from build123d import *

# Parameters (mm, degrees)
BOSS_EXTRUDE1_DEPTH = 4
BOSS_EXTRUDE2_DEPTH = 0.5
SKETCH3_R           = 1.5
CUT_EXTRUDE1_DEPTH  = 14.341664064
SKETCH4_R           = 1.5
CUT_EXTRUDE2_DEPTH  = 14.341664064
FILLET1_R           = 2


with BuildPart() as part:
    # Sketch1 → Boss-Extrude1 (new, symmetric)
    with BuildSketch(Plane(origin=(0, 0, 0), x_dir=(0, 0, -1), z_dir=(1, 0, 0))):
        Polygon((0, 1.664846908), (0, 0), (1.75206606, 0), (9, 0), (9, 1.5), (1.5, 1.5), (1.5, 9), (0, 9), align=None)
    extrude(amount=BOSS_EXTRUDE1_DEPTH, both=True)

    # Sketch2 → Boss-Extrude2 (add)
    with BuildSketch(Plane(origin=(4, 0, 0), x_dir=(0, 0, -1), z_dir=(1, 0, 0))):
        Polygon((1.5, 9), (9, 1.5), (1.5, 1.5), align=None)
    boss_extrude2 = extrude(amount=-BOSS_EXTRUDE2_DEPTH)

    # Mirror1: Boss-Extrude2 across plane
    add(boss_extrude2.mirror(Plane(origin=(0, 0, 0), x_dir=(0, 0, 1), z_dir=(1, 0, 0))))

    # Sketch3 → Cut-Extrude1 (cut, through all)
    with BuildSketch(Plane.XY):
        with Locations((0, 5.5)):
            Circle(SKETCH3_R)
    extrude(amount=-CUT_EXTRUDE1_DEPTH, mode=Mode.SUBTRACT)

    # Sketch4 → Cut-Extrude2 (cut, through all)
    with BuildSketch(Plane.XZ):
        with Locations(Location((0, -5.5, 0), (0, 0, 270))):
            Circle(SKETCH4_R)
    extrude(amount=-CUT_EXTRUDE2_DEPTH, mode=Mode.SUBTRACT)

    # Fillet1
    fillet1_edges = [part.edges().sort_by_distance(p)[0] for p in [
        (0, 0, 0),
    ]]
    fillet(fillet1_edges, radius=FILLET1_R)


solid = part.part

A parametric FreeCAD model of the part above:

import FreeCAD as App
import Part
import Sketcher
Q = App.Units.Quantity


def edges_at(feature, points):
    """Names of the edges that pass closest to the given points."""
    edges = feature.Shape.Edges
    near = lambda p: min(range(len(edges)), key=lambda i: edges[i].distToShape(Part.Vertex(*p))[0])
    return sorted({f"Edge{near(p) + 1}" for p in points})


def add_polygon(sketch, points):
    """Adds a closed chain of lines whose ends are joined by coincident constraints."""
    first, n = sketch.GeometryCount, len(points)
    for a, b in zip(points, points[1:] + points[:1]):
        sketch.addGeometry(Part.LineSegment(App.Vector(*a, 0), App.Vector(*b, 0)), False)
    for i in range(n):
        sketch.addConstraint(Sketcher.Constraint("Coincident", first + i, 2, first + (i + 1) % n, 1))

doc = App.newDocument("Part")
body = doc.addObject("PartDesign::Body", "Body")

# Sketch on YZ plane
sketch1 = body.newObject("Sketcher::SketchObject", "Sketch")
sketch1.AttachmentSupport = (doc.getObject("YZ_Plane"), [""])
sketch1.MapMode = "FlatFace"
add_polygon(sketch1, [(0, 0), (0, -9), (1.5, -9), (1.5, -1.5), (9, -1.5), (9, 0)])  # lines 0-5
sketch1.addConstraint([
    Sketcher.Constraint("Vertical", 0),
    Sketcher.Constraint("Horizontal", 1),
    Sketcher.Constraint("Vertical", 2),
    Sketcher.Constraint("Horizontal", 3),
    Sketcher.Constraint("Vertical", 4),
    Sketcher.Constraint("Horizontal", 5),
    Sketcher.Constraint("Coincident", 5, 2, -1, 1),
    Sketcher.Constraint("Equal", 5, 0),
    Sketcher.Constraint("Equal", 3, 2),
    Sketcher.Constraint("DistanceX", 5, 2, 5, 1, Q("9 mm")),
    Sketcher.Constraint("DistanceX", 1, 1, 1, 2, Q("1.5 mm")),
])
pad1 = body.newObject("PartDesign::Pad", "Pad")
pad1.Profile = sketch1
pad1.Length = 8
pad1.Midplane = True

# Sketch on YZ plane
sketch2 = body.newObject("Sketcher::SketchObject", "Sketch001")
sketch2.AttachmentSupport = (doc.getObject("YZ_Plane"), [""])
sketch2.MapMode = "FlatFace"
sketch2.AttachmentOffset = App.Placement(App.Vector(0, 0, 4), App.Rotation())
add_polygon(sketch2, [(1.5, -9), (9, -1.5), (1.5, -1.5)])  # lines 0-2
sketch2.addConstraint([
    Sketcher.Constraint("Horizontal", 1),
    Sketcher.Constraint("Vertical", 2),
    Sketcher.Constraint("Equal", 1, 2),
    Sketcher.Constraint("DistanceX", 1, 2, 1, 1, Q("7.5 mm")),
    Sketcher.Constraint("DistanceX", -1, 1, 0, 2, Q("9 mm")),
    Sketcher.Constraint("DistanceY", 2, 2, -1, 1, Q("9 mm")),
])
pad2 = body.newObject("PartDesign::Pad", "Pad001")
pad2.Profile = sketch2
pad2.Length = 0.5
pad2.Reversed = True
doc.recompute()

mirrored = body.newObject("PartDesign::Mirrored", "Mirrored")
mirrored.Originals = [pad2]
mirrored.MirrorPlane = (doc.getObject("YZ_Plane"), [""])
body.Tip = mirrored

# Sketch on XY plane
sketch3 = body.newObject("Sketcher::SketchObject", "Sketch002")
sketch3.AttachmentSupport = (doc.getObject("XY_Plane"), [""])
sketch3.MapMode = "FlatFace"
sketch3.addGeometry(Part.Circle(App.Vector(0, 5.5, 0), App.Vector(0, 0, 1), 1.5), False)
sketch3.addConstraint([
    Sketcher.Constraint("PointOnObject", 0, 3, -2),
    Sketcher.Constraint("Diameter", 0, Q("3 mm")),
    Sketcher.Constraint("DistanceY", -1, 1, 0, 3, Q("5.5 mm")),
])
pocket1 = body.newObject("PartDesign::Pocket", "Pocket")
pocket1.Profile = sketch3
pocket1.Type = "ThroughAll"

# Sketch on XZ plane
sketch4 = body.newObject("Sketcher::SketchObject", "Sketch003")
sketch4.AttachmentSupport = (doc.getObject("XZ_Plane"), [""])
sketch4.MapMode = "FlatFace"
sketch4.addGeometry(Part.Circle(App.Vector(0, -5.5, 0), App.Vector(0, 0, 1), 1.5), False)
sketch4.addConstraint([
    Sketcher.Constraint("PointOnObject", 0, 3, -2),
    Sketcher.Constraint("Diameter", 0, Q("3 mm")),
    Sketcher.Constraint("DistanceY", 0, 3, -1, 1, Q("5.5 mm")),
])
pocket2 = body.newObject("PartDesign::Pocket", "Pocket001")
pocket2.Profile = sketch4
pocket2.Type = "ThroughAll"
doc.recompute()

fillet = body.newObject("PartDesign::Fillet", "Fillet")
fillet.Base = (pocket2, edges_at(pocket2, [(0, 0, 0)]))
fillet.Radius = 2

doc.recompute()
